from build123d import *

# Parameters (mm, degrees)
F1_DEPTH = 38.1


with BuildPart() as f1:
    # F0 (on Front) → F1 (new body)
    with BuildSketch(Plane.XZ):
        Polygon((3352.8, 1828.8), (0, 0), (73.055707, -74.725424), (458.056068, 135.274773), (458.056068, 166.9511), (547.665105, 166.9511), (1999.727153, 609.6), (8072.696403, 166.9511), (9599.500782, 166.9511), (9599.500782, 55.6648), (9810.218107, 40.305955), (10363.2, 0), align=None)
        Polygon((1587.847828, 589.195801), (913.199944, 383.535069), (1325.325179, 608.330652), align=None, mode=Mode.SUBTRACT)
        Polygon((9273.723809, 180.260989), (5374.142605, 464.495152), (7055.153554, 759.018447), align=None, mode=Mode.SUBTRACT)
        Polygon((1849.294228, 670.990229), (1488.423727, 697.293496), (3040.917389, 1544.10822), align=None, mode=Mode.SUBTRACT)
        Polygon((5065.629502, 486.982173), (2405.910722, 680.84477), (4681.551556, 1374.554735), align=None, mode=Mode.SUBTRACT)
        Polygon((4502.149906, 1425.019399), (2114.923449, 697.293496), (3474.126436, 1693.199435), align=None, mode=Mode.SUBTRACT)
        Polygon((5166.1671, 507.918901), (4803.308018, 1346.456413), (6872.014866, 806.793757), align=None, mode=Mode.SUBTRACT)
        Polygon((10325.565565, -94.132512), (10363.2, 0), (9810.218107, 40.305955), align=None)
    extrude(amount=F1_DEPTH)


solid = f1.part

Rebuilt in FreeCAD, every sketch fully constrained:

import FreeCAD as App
import Part
import Sketcher

V = App.Vector
Q = App.Units.Quantity


def add_polygon(sketch, points):
    """Adds a closed chain of lines whose ends are joined by coincident constraints."""
    first, n = sketch.GeometryCount, len(points)
    for a, b in zip(points, points[1:] + points[:1]):
        sketch.addGeometry(Part.LineSegment(App.Vector(*a, 0), App.Vector(*b, 0)), False)
    for i in range(n):
        sketch.addConstraint(Sketcher.Constraint("Coincident", first + i, 2, first + (i + 1) % n, 1))

doc = App.newDocument("Part")
body = doc.addObject("PartDesign::Body", "Body")

sketch1 = body.newObject("Sketcher::SketchObject", "Sketch")
sketch1.AttachmentSupport = (doc.getObject("XZ_Plane"), [""])
sketch1.MapMode = "FlatFace"
add_polygon(sketch1, [(3352.8, 1828.8), (0, 0), (73.055707, -74.725424), (458.056068, 135.274773), (458.056068, 166.9511), (547.665105, 166.9511), (1999.727153, 609.6), (8072.696403, 166.9511), (9599.500782, 166.9511), (9599.500782, 55.6648), (9810.218107, 40.305955), (10325.565565, -94.132512), (10363.2, 0)])
add_polygon(sketch1, [(1325.325179, 608.330652), (1587.847828, 589.195801), (913.199944, 383.535069)])
add_polygon(sketch1, [(4681.551556, 1374.554735), (5065.629502, 486.982173), (2405.910722, 680.84477)])
add_polygon(sketch1, [(7055.153554, 759.018447), (9273.723809, 180.260989), (5374.142605, 464.495152)])
add_polygon(sketch1, [(6872.014866, 806.793757), (5166.1671, 507.918901), (4803.308018, 1346.456413)])
add_polygon(sketch1, [(3040.917389, 1544.10822), (1849.294228, 670.990229), (1488.423727, 697.293496)])
add_polygon(sketch1, [(3474.126436, 1693.199435), (4502.149906, 1425.019399), (2114.923449, 697.293496)])
sketch1.addConstraint([
    Sketcher.Constraint("Vertical", 3),
    Sketcher.Constraint("Horizontal", 4),
    Sketcher.Constraint("Horizontal", 7),
    Sketcher.Constraint("Vertical", 8),
    Sketcher.Constraint("Coincident", 0, 2, -1, 1),
    Sketcher.Constraint("PointOnObject", 11, 2, -1),
    Sketcher.Constraint("Parallel", 0, 2),
    Sketcher.Constraint("Parallel", 6, 9),
    Sketcher.Constraint("Parallel", 10, 12),
    Sketcher.Constraint("Parallel", 9, 13),
    Sketcher.Constraint("Parallel", 5, 14),
    Sketcher.Constraint("Parallel", 2, 15),
    Sketcher.Constraint("Parallel", 13, 17),
    Sketcher.Constraint("Parallel", 14, 18),
    Sketcher.Constraint("Parallel", 12, 19),
    Sketcher.Constraint("Parallel", 17, 20),
    Sketcher.Constraint("Parallel", 21, 22),
    Sketcher.Constraint("Parallel", 16, 23),
    Sketcher.Constraint("Parallel", 19, 24),
    Sketcher.Constraint("Parallel", 20, 26),
    Sketcher.Constraint("Parallel", 15, 27),
    Sketcher.Constraint("Parallel", 24, 28),
    Sketcher.Constraint("Parallel", 18, 29),
    Sketcher.Constraint("Parallel", 25, 30),
    Sketcher.Constraint("Horizontal", 4, 2, 6, 2),
    Sketcher.Constraint("Horizontal", 26, 2, 29, 2),
    Sketcher.Constraint("DistanceY", -1, 1, 5, 2, Q("24 in")),
    Sketcher.Constraint("DistanceX", -1, 1, 11, 2, Q("408 in")),
    Sketcher.Constraint("DistanceX", -1, 1, 12, 2, Q("132 in")),
    Sketcher.Constraint("DistanceY", -1, 1, 12, 2, Q("72 in")),
    Sketcher.Constraint("DistanceY", 8, 2, 8, 1, 111.2863),
    Sketcher.Constraint("DistanceY", -1, 1, 26, 2, Q("27.4524998 in")),
    Sketcher.Constraint("DistanceX", 26, 2, 25, 2, Q("14.2075 in")),
    Sketcher.Constraint("DistanceY", 23, 2, 30, 2, Q("13.6513001 in")),
    Sketcher.Constraint("Distance", 23, 913.680399),
    Sketcher.Constraint("Distance", 30, 1685.010801),
    Sketcher.Constraint("DistanceX", 7, 1, 7, 2, 1526.804379),
    Sketcher.Constraint("DistanceY", -1, 1, 3, 2, 166.9511),
    Sketcher.Constraint("DistanceY", -1, 1, 13, 2, 589.195801),
    Sketcher.Constraint("DistanceX", -1, 1, 16, 2, 5065.629502),
    Sketcher.Constraint("DistanceX", -1, 1, 22, 2, 5166.1671),
    Sketcher.Constraint("DistanceY", -1, 1, 22, 2, 507.918901),
    Sketcher.Constraint("DistanceY", -1, 1, 28, 2, 1425.019399),
    Sketcher.Constraint("DistanceX", 1, 2, 4, 2, 474.609398),
    Sketcher.Constraint("DistanceX", 4, 2, 6, 2, 7525.031298),
    Sketcher.Constraint("DistanceX", 16, 2, 6, 2, 3007.066901),
    Sketcher.Constraint("DistanceY", 14, 2, 17, 2, 297.309701),
    Sketcher.Constraint("DistanceX", 19, 2, 9, 2, 536.494298),
    Sketcher.Constraint("DistanceY", 10, 2, 19, 2, 274.393501),
    Sketcher.Constraint("DistanceX", 18, 2, 21, 2, 2373.601998),
    Sketcher.Constraint("DistanceX", 13, 2, 25, 2, 261.4464),
    Sketcher.Constraint("DistanceY", 18, 2, 30, 2, 318.6447),
    Sketcher.Constraint("Distance", 1, 104.50371),
    Sketcher.Constraint("Distance", 6, 6089.079862),
    Sketcher.Constraint("Distance", 13, 263.219079),
    Sketcher.Constraint("Distance", 24, 2137.939149),
    Sketcher.Constraint("DistanceX", 4, 1, 4, 2, 89.609037),
    Sketcher.Constraint("DistanceX", -1, 1, 13, 2, 1587.847828),
    Sketcher.Constraint("DistanceX", -1, 1, 19, 2, 9273.723809),
    Sketcher.Constraint("DistanceY", -1, 1, 19, 2, 180.260989),
    Sketcher.Constraint("DistanceX", -1, 1, 29, 2, 2114.923449),
])
pad1 = body.newObject("PartDesign::Pad", "Pad")
pad1.Profile = sketch1
pad1.Length = Q("1.5 in")

doc.recompute()
